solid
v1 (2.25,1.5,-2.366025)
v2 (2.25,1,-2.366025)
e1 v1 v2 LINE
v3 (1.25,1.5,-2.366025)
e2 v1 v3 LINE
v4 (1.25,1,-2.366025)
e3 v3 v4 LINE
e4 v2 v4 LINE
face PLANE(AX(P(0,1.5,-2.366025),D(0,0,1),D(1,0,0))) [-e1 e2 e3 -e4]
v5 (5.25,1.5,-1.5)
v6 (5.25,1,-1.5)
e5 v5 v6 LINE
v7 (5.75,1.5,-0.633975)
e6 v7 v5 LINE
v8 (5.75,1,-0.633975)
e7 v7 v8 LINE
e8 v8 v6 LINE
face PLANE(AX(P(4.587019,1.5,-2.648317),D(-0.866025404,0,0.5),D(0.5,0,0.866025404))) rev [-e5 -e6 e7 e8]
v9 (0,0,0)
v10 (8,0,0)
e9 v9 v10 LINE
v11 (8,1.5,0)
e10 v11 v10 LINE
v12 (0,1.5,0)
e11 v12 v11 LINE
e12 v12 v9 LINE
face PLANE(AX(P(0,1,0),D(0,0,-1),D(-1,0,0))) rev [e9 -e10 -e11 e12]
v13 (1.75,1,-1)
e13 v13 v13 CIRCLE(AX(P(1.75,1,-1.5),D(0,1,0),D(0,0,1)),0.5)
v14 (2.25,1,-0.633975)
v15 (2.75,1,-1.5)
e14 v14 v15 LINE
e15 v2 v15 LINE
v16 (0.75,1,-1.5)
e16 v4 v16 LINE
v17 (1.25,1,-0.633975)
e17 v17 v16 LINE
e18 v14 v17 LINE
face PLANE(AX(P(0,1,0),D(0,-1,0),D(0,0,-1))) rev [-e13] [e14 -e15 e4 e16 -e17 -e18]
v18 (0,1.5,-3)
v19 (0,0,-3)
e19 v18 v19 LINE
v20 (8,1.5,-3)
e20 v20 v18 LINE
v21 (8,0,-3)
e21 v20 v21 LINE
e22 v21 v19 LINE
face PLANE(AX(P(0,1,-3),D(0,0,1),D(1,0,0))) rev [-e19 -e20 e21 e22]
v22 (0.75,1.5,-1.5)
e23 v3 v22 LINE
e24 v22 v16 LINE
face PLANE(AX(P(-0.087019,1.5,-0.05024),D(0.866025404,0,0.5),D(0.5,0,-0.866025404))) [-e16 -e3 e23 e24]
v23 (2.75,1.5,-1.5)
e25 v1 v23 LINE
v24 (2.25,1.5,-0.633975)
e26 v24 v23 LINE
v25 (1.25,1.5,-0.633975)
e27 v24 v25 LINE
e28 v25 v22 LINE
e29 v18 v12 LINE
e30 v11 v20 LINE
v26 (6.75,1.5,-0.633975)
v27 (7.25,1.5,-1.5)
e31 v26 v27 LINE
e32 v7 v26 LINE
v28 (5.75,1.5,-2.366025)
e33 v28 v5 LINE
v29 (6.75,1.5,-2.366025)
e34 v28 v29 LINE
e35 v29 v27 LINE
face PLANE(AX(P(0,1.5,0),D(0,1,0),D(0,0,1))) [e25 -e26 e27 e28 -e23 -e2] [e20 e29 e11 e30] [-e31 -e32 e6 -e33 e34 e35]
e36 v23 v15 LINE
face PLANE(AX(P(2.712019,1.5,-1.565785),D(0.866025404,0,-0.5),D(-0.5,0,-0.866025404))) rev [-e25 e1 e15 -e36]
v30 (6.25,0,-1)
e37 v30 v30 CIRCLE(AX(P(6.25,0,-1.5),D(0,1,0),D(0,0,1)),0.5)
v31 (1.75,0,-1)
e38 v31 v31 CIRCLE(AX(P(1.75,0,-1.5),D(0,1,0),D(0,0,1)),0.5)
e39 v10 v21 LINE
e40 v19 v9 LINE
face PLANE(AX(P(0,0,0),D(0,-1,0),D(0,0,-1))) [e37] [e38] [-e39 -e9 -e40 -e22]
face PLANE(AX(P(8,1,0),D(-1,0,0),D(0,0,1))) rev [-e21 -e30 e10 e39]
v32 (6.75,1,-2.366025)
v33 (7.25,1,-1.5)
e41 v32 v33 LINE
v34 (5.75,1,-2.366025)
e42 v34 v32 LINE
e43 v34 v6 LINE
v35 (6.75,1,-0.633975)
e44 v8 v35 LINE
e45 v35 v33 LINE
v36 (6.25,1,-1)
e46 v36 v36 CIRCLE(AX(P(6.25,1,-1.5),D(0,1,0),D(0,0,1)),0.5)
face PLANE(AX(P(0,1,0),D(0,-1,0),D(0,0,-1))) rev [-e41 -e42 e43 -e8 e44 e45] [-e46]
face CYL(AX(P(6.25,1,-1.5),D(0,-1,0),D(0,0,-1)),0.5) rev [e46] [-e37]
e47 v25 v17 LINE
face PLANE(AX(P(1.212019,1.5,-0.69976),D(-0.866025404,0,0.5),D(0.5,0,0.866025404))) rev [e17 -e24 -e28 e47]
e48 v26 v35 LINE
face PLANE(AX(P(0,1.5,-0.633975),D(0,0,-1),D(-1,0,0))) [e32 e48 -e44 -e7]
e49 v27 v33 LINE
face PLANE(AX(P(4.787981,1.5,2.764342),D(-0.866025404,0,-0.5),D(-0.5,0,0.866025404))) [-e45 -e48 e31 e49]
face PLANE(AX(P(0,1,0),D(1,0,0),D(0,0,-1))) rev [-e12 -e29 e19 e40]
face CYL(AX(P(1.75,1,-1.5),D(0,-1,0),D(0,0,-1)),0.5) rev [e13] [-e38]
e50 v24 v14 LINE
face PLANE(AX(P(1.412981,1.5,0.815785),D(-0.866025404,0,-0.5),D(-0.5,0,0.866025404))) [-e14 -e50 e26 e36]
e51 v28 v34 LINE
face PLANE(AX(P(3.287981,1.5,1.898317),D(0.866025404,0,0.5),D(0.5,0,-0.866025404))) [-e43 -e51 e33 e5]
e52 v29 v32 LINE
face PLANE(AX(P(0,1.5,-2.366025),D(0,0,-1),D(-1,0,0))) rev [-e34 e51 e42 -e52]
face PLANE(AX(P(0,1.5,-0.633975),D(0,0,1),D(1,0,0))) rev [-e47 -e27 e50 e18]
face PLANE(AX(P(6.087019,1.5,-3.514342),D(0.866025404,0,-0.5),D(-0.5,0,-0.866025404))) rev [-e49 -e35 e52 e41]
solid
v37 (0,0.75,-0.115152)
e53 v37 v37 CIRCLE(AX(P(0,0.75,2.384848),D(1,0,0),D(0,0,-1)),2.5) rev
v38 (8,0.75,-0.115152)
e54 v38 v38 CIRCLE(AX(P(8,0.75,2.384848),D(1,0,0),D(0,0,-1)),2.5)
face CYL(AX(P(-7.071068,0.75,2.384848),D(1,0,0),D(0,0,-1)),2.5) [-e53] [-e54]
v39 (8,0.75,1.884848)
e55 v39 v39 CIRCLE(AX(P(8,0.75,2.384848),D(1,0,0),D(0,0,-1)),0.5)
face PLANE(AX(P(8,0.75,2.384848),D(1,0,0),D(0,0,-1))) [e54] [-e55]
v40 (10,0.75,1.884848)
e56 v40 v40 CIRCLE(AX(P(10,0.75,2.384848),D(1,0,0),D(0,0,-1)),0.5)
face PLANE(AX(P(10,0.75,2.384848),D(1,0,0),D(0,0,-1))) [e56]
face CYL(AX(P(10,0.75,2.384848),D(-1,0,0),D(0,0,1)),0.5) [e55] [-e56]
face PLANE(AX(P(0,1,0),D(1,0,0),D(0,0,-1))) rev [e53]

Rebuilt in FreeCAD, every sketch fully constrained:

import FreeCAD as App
import Part
import Sketcher
from FreeCAD import Vector
Q = App.Units.Quantity

doc = App.newDocument("Part")
params = doc.addObject("Spreadsheet::Sheet", "Params")
for row, (alias, value) in enumerate([
    ("sketch1_diameter", "1 mm"),
    ("sketch1_width", "8 mm"),
    ("sketch1_height", "3 mm"),
    ("pad1_length", "1 mm"),
    ("sketch2_width", "8 mm"),
    ("sketch2_width2", "1 mm"),
    ("sketch2_height", "3 mm"),
    ("sketch2_length", "1 mm"),
    ("pad2_length", "0.5 mm"),
    ("sketch3_diameter", "5 mm"),
    ("pad3_length", "8 mm"),
    ("sketch4_diameter", "1 mm"),
    ("pad4_length", "2 mm"),
], start=1):
    params.set(f"A{row}", alias)
    params.set(f"B{row}", "=" + value)
    params.setAlias(f"B{row}", alias)

body = doc.addObject("PartDesign::Body", "Body")

# Sketch on XZ plane
sketch1 = body.newObject("Sketcher::SketchObject", "Sketch")
sketch1.AttachmentSupport = (doc.getObject("XZ_Plane"), [""])
sketch1.MapMode = "FlatFace"
sketch1.addGeometry([
    Part.LineSegment(Vector(0, -3, 0), Vector(0, 0, 0)),  # 0
    Part.LineSegment(Vector(0, 0, 0), Vector(8, 0, 0)),  # 1
    Part.LineSegment(Vector(8, 0, 0), Vector(8, -3, 0)),  # 2
    Part.LineSegment(Vector(8, -3, 0), Vector(0, -3, 0)),  # 3
    Part.Circle(Vector(1.75, -1.5, 0), Vector(0, 0, 1), 0.5),  # 4
    Part.Circle(Vector(6.25, -1.5, 0), Vector(0, 0, 1), 0.5),  # 5
], False)
sketch1.addConstraint([
    Sketcher.Constraint("Coincident", 0, 2, 1, 1),
    Sketcher.Constraint("Coincident", 1, 2, 2, 1),
    Sketcher.Constraint("Coincident", 2, 2, 3, 1),
    Sketcher.Constraint("Coincident", 3, 2, 0, 1),
    Sketcher.Constraint("Vertical", 0),
    Sketcher.Constraint("Horizontal", 1),
    Sketcher.Constraint("Vertical", 2),
    Sketcher.Constraint("Horizontal", 3),
    Sketcher.Constraint("Coincident", 0, 2, -1, 1),
    Sketcher.Constraint("Equal", 4, 5),
    Sketcher.Constraint("Horizontal", 4, 3, 5, 3),
    Sketcher.Constraint("Diameter", 4, 1.0),
    Sketcher.Constraint("DistanceX", 1, 1, 1, 2, 8.0),
    Sketcher.Constraint("DistanceY", 0, 1, 0, 2, 3.0),
    Sketcher.Constraint("DistanceY", 4, 3, -1, 1, 1.5),
    Sketcher.Constraint("DistanceX", 4, 3, 5, 3, 4.5),
    Sketcher.Constraint("DistanceX", -1, 1, 4, 3, 1.75),
])
sketch1.setExpression("Constraints[11]", "Params.sketch1_diameter")
sketch1.setExpression("Constraints[12]", "Params.sketch1_width")
sketch1.setExpression("Constraints[13]", "Params.sketch1_height")
pad1 = body.newObject("PartDesign::Pad", "Pad")
pad1.Profile = sketch1
pad1.setExpression("Length", "Params.pad1_length")
pad1.Reversed = True

# Sketch on XZ plane
sketch2 = body.newObject("Sketcher::SketchObject", "Sketch001")
sketch2.AttachmentSupport = (doc.getObject("XZ_Plane"), [""])
sketch2.MapMode = "FlatFace"
sketch2.AttachmentOffset = App.Placement(Vector(0, 0, -1), App.Rotation())
sketch2.addGeometry([
    Part.LineSegment(Vector(0, -3, 0), Vector(0, 0, 0)),  # 0
    Part.LineSegment(Vector(0, 0, 0), Vector(8, 0, 0)),  # 1
    Part.LineSegment(Vector(8, 0, 0), Vector(8, -3, 0)),  # 2
    Part.LineSegment(Vector(8, -3, 0), Vector(0, -3, 0)),  # 3
    Part.LineSegment(Vector(2.75, -1.5, 0), Vector(2.25, -0.633975, 0)),  # 4
    Part.LineSegment(Vector(2.25, -0.633975, 0), Vector(1.25, -0.633975, 0)),  # 5
    Part.LineSegment(Vector(1.25, -0.633975, 0), Vector(0.75, -1.5, 0)),  # 6
    Part.LineSegment(Vector(0.75, -1.5, 0), Vector(1.25, -2.366025, 0)),  # 7
    Part.LineSegment(Vector(1.25, -2.366025, 0), Vector(2.25, -2.366025, 0)),  # 8
    Part.LineSegment(Vector(2.25, -2.366025, 0), Vector(2.75, -1.5, 0)),  # 9
    Part.LineSegment(Vector(5.25, -1.5, 0), Vector(5.75, -2.366025, 0)),  # 10
    Part.LineSegment(Vector(5.75, -2.366025, 0), Vector(6.75, -2.366025, 0)),  # 11
    Part.LineSegment(Vector(6.75, -2.366025, 0), Vector(7.25, -1.5, 0)),  # 12
    Part.LineSegment(Vector(7.25, -1.5, 0), Vector(6.75, -0.633975, 0)),  # 13
    Part.LineSegment(Vector(6.75, -0.633975, 0), Vector(5.75, -0.633975, 0)),  # 14
    Part.LineSegment(Vector(5.75, -0.633975, 0), Vector(5.25, -1.5, 0)),  # 15
], False)
sketch2.addConstraint([
    Sketcher.Constraint("Coincident", 0, 2, 1, 1),
    Sketcher.Constraint("Coincident", 1, 2, 2, 1),
    Sketcher.Constraint("Coincident", 2, 2, 3, 1),
    Sketcher.Constraint("Coincident", 3, 2, 0, 1),
    Sketcher.Constraint("Coincident", 4, 2, 5, 1),
    Sketcher.Constraint("Coincident", 5, 2, 6, 1),
    Sketcher.Constraint("Coincident", 6, 2, 7, 1),
    Sketcher.Constraint("Coincident", 7, 2, 8, 1),
    Sketcher.Constraint("Coincident", 8, 2, 9, 1),
    Sketcher.Constraint("Coincident", 9, 2, 4, 1),
    Sketcher.Constraint("Coincident", 10, 2, 11, 1),
    Sketcher.Constraint("Coincident", 11, 2, 12, 1),
    Sketcher.Constraint("Coincident", 12, 2, 13, 1),
    Sketcher.Constraint("Coincident", 13, 2, 14, 1),
    Sketcher.Constraint("Coincident", 14, 2, 15, 1),
    Sketcher.Constraint("Coincident", 15, 2, 10, 1),
    Sketcher.Constraint("Vertical", 0),
    Sketcher.Constraint("Horizontal", 1),
    Sketcher.Constraint("Vertical", 2),
    Sketcher.Constraint("Horizontal", 3),
    Sketcher.Constraint("Horizontal", 5),
    Sketcher.Constraint("Horizontal", 8),
    Sketcher.Constraint("Horizontal", 11),
    Sketcher.Constraint("Horizontal", 14),
    Sketcher.Constraint("Coincident", 0, 2, -1, 1),
    Sketcher.Constraint("Parallel", 4, 7),
    Sketcher.Constraint("Parallel", 6, 9),
    Sketcher.Constraint("Parallel", 7, 10),
    Sketcher.Constraint("Parallel", 9, 12),
    Sketcher.Constraint("Parallel", 10, 13),
    Sketcher.Constraint("Parallel", 12, 15),
    Sketcher.Constraint("Horizontal", 6, 2, 9, 2),
    Sketcher.Constraint("Horizontal", 8, 2, 10, 2),
    Sketcher.Constraint("Horizontal", 9, 2, 12, 2),
    Sketcher.Constraint("Horizontal", 5, 2, 13, 2),
    Sketcher.Constraint("Horizontal", 12, 2, 15, 2),
    Sketcher.Constraint("Vertical", 5, 2, 7, 2),
    Sketcher.Constraint("Vertical", 4, 2, 8, 2),
    Sketcher.Constraint("Equal", 8, 11),
    Sketcher.Constraint("DistanceX", 1, 1, 1, 2, 8.0),
    Sketcher.Constraint("DistanceX", 5, 2, 5, 1, 1.0),
    Sketcher.Constraint("DistanceY", 0, 1, 0, 2, 3.0),
    Sketcher.Constraint("Angle", 4, Q("120 deg")),
    Sketcher.Constraint("Distance", 4, 1.0),
    Sketcher.Constraint("DistanceX", 9, 2, 10, 2, 3.0),
    Sketcher.Constraint("DistanceY", 6, 2, -1, 1, 1.5),
    Sketcher.Constraint("DistanceX", -1, 1, 4, 2, 2.25),
])
sketch2.setExpression("Constraints[39]", "Params.sketch2_width")
sketch2.setExpression("Constraints[40]", "Params.sketch2_width2")
sketch2.setExpression("Constraints[41]", "Params.sketch2_height")
sketch2.setExpression("Constraints[43]", "Params.sketch2_length")
pad2 = body.newObject("PartDesign::Pad", "Pad001")
pad2.Profile = sketch2
pad2.setExpression("Length", "Params.pad2_length")
pad2.Reversed = True
body2 = doc.addObject("PartDesign::Body", "Body001")

# Sketch on YZ plane
sketch3 = body2.newObject("Sketcher::SketchObject", "Sketch002")
sketch3.AttachmentSupport = (doc.getObject("YZ_Plane001"), [""])
sketch3.MapMode = "FlatFace"
sketch3.AttachmentOffset = App.Placement(Vector(0, 0, 8), App.Rotation())
sketch3.addGeometry(Part.Circle(Vector(0.75, 2.384848, 0), Vector(0, 0, 1), 2.5), False)
sketch3.addConstraint([
    Sketcher.Constraint("Diameter", 0, 5.0),
    Sketcher.Constraint("DistanceX", -1, 1, 0, 3, 0.75),
    Sketcher.Constraint("DistanceY", -1, 1, 0, 3, 2.384848),
])
sketch3.setExpression("Constraints[0]", "Params.sketch3_diameter")
pad3 = body2.newObject("PartDesign::Pad", "Pad002")
pad3.Profile = sketch3
pad3.setExpression("Length", "Params.pad3_length")
pad3.Reversed = True

# Sketch on YZ plane
sketch4 = body2.newObject("Sketcher::SketchObject", "Sketch003")
sketch4.AttachmentSupport = (doc.getObject("YZ_Plane001"), [""])
sketch4.MapMode = "FlatFace"
sketch4.AttachmentOffset = App.Placement(Vector(0, 0, 8), App.Rotation())
sketch4.addGeometry(Part.Circle(Vector(0.75, 2.384848, 0), Vector(0, 0, 1), 0.5), False)
sketch4.addConstraint([
    Sketcher.Constraint("Diameter", 0, 1.0),
    Sketcher.Constraint("DistanceX", -1, 1, 0, 3, 0.75),
    Sketcher.Constraint("DistanceY", -1, 1, 0, 3, 2.384848),
])
sketch4.setExpression("Constraints[0]", "Params.sketch4_diameter")
pad4 = body2.newObject("PartDesign::Pad", "Pad003")
pad4.Profile = sketch4
pad4.setExpression("Length", "Params.pad4_length")

doc.recompute()
